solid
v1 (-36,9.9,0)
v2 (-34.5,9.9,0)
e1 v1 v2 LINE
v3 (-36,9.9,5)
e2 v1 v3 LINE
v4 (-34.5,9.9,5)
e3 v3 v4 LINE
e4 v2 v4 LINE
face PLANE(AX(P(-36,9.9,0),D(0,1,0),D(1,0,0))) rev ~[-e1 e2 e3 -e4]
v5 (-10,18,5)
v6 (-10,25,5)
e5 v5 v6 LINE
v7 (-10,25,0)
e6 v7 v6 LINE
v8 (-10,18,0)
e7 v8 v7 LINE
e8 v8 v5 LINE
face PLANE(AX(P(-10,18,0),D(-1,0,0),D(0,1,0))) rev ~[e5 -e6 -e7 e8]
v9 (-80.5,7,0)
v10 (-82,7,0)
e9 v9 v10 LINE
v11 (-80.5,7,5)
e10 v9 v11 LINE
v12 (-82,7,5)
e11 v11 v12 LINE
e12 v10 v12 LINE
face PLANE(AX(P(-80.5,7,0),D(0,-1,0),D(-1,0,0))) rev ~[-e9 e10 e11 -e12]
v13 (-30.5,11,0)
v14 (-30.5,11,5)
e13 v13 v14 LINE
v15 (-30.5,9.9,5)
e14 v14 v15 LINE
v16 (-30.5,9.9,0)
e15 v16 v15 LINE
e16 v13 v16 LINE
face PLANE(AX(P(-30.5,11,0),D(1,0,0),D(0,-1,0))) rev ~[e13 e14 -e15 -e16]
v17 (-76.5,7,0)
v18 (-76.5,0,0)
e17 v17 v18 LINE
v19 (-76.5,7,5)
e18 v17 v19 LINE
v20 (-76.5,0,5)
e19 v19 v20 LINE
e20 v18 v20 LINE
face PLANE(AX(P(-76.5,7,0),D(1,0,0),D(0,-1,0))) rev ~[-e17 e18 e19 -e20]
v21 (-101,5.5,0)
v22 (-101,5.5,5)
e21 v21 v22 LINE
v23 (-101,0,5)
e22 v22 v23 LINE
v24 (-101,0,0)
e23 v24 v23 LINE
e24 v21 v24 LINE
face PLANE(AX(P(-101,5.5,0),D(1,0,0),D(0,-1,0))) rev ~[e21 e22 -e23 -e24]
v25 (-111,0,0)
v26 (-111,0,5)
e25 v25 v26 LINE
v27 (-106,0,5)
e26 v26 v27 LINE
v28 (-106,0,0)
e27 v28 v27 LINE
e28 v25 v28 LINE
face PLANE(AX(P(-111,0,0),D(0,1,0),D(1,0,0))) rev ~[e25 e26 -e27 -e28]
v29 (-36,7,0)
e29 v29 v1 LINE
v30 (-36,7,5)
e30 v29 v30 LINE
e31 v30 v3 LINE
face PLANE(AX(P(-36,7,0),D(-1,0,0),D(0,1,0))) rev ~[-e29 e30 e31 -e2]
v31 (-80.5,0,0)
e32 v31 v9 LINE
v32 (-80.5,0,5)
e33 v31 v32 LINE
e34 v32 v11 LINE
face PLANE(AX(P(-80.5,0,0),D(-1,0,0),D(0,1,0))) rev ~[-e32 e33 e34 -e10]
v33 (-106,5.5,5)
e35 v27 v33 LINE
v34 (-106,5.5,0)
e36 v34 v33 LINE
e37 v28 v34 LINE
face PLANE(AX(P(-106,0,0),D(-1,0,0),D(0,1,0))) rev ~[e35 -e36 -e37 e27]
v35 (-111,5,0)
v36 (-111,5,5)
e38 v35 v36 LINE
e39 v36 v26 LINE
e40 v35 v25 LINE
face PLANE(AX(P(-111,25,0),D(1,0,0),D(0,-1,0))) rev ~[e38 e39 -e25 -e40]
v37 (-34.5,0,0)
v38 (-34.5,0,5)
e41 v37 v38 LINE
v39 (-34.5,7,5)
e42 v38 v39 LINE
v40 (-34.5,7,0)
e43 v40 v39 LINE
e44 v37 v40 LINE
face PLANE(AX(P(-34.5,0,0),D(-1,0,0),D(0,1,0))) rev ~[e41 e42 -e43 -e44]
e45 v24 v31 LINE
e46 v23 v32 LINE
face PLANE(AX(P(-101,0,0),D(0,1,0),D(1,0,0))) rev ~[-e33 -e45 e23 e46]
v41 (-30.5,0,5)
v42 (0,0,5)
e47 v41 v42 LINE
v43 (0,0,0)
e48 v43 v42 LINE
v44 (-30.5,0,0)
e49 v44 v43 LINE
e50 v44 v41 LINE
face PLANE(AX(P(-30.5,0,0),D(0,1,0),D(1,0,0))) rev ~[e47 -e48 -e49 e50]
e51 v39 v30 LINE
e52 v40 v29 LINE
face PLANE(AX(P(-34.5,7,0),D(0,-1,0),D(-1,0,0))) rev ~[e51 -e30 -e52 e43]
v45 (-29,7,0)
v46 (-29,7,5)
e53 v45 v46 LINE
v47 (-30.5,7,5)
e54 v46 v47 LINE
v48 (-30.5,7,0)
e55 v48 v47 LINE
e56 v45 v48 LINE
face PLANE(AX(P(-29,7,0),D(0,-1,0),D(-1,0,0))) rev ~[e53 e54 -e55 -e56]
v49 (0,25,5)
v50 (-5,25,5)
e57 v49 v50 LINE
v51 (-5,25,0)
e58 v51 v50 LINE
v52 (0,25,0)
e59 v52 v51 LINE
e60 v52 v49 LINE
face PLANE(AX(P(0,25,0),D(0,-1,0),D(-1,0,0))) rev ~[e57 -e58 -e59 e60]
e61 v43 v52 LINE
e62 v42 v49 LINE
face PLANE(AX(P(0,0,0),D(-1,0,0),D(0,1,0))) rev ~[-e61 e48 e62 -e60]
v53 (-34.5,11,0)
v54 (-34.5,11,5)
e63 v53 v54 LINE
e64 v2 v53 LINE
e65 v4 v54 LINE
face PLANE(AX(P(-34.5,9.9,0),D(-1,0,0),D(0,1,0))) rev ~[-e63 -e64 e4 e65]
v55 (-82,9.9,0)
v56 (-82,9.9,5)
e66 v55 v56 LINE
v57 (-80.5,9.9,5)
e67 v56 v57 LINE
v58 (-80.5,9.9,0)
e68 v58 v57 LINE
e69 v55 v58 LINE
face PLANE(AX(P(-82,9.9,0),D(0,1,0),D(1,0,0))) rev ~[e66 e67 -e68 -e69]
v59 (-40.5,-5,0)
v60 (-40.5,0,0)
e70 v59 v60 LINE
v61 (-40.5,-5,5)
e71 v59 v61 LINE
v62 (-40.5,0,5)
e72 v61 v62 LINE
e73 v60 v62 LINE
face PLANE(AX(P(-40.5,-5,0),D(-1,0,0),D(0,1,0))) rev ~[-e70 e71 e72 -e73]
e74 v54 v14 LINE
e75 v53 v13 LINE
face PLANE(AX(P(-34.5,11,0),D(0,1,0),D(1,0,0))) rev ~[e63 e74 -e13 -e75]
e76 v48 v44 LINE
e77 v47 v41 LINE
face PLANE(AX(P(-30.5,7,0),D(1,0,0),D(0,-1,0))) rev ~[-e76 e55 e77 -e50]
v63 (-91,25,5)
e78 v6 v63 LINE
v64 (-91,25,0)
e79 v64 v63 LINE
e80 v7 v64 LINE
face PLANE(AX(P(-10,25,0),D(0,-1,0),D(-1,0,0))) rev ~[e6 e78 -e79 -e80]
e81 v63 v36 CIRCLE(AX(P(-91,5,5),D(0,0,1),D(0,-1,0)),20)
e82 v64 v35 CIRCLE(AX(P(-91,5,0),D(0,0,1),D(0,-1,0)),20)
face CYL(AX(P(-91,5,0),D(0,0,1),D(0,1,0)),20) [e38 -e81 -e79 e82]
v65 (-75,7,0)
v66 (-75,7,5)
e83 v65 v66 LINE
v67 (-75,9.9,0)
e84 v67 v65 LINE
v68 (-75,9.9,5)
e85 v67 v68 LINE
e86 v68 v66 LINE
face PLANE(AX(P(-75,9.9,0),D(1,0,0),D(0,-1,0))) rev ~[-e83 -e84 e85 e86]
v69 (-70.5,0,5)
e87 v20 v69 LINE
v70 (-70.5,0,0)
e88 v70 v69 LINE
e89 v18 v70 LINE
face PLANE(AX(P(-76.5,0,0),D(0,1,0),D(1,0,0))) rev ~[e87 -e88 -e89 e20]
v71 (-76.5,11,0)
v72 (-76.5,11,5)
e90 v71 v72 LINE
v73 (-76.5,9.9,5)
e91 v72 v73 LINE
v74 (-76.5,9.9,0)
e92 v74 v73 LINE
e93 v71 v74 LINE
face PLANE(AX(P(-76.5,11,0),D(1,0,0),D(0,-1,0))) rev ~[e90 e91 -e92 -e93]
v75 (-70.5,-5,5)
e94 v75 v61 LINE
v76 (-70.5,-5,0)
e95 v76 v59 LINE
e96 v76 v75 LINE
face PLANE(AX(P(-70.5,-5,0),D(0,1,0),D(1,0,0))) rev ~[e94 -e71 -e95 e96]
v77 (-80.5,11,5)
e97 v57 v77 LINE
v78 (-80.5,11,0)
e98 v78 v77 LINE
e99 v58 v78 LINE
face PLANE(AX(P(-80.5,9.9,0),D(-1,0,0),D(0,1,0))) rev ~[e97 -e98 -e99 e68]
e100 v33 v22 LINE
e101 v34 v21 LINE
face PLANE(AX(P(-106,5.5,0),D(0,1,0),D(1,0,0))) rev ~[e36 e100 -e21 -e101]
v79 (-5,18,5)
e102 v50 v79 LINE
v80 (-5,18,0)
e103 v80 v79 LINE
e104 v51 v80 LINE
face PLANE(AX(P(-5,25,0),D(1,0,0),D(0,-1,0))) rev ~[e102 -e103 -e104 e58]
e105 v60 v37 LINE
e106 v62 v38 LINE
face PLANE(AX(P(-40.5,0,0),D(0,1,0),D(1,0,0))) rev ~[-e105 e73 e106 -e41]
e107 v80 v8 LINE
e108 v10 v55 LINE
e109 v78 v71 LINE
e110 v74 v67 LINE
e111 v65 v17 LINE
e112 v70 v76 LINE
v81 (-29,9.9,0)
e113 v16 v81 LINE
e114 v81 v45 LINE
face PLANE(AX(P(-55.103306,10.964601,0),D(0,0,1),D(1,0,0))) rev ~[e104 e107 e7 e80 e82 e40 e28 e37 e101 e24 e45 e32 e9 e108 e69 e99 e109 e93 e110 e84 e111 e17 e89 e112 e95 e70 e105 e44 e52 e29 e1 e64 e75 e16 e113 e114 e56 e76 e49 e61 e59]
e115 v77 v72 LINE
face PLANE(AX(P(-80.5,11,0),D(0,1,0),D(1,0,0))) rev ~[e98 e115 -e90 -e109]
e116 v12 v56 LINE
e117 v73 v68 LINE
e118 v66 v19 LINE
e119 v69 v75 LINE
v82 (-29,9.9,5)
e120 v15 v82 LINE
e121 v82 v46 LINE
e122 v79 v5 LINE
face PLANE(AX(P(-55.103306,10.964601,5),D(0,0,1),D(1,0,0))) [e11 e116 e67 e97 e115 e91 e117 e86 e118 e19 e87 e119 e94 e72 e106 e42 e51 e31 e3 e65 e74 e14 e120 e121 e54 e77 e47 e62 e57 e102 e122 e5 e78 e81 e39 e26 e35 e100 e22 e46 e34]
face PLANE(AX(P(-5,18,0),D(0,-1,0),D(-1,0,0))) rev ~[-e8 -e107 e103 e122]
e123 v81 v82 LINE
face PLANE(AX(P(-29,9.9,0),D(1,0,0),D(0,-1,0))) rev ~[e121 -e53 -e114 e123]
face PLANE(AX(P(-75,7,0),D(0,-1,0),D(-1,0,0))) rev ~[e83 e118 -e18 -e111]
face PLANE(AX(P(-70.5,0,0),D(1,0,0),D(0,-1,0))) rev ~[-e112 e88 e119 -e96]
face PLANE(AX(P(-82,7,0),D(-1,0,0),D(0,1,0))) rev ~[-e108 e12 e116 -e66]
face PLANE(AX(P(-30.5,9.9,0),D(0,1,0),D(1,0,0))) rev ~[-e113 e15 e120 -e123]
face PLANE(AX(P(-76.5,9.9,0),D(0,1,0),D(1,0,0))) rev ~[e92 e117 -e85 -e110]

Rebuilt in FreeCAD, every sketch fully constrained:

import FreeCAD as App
import Part
import Sketcher

V = App.Vector
Q = App.Units.Quantity


def edges_at(feature, points):
    """Names of the edges that pass closest to the given points."""
    edges = feature.Shape.Edges
    near = lambda p: min(range(len(edges)), key=lambda i: edges[i].distToShape(Part.Vertex(*p))[0])
    return sorted({f"Edge{near(p) + 1}" for p in points})

doc = App.newDocument("Part")
body = doc.addObject("PartDesign::Body", "Body")

# Sketch on XY plane
sketch1 = body.newObject("Sketcher::SketchObject", "Sketch")
sketch1.AttachmentSupport = (doc.getObject("XY_Plane"), [""])
sketch1.MapMode = "FlatFace"
sketch1.addGeometry([
    Part.LineSegment(V(-101, 0, 0), V(-80.5, 0, 0)),  # 0
    Part.LineSegment(V(-80.5, 0, 0), V(-80.5, 7, 0)),  # 1
    Part.LineSegment(V(-80.5, 7, 0), V(-82, 7, 0)),  # 2
    Part.LineSegment(V(-82, 7, 0), V(-82, 9.9, 0)),  # 3
    Part.LineSegment(V(-82, 9.9, 0), V(-80.5, 9.9, 0)),  # 4
    Part.LineSegment(V(-80.5, 9.9, 0), V(-80.5, 11, 0)),  # 5
    Part.LineSegment(V(-80.5, 11, 0), V(-76.5, 11, 0)),  # 6
    Part.LineSegment(V(-76.5, 11, 0), V(-76.5, 9.9, 0)),  # 7
    Part.LineSegment(V(-76.5, 9.9, 0), V(-75, 9.9, 0)),  # 8
    Part.LineSegment(V(-75, 9.9, 0), V(-75, 7, 0)),  # 9
    Part.LineSegment(V(-75, 7, 0), V(-76.5, 7, 0)),  # 10
    Part.LineSegment(V(-76.5, 7, 0), V(-76.5, 0, 0)),  # 11
    Part.LineSegment(V(-76.5, 0, 0), V(-70.5, 0, 0)),  # 12
    Part.LineSegment(V(-70.5, 0, 0), V(-70.5, -5, 0)),  # 13
    Part.LineSegment(V(-70.5, -5, 0), V(-40.5, -5, 0)),  # 14
    Part.LineSegment(V(-40.5, -5, 0), V(-40.5, 0, 0)),  # 15
    Part.LineSegment(V(-40.5, 0, 0), V(-34.5, 0, 0)),  # 16
    Part.LineSegment(V(-34.5, 0, 0), V(-34.5, 7, 0)),  # 17
    Part.LineSegment(V(-34.5, 7, 0), V(-36, 7, 0)),  # 18
    Part.LineSegment(V(-36, 7, 0), V(-36, 9.9, 0)),  # 19
    Part.LineSegment(V(-36, 9.9, 0), V(-34.5, 9.9, 0)),  # 20
    Part.LineSegment(V(-34.5, 9.9, 0), V(-34.5, 11, 0)),  # 21
    Part.LineSegment(V(-34.5, 11, 0), V(-30.5, 11, 0)),  # 22
    Part.LineSegment(V(-30.5, 11, 0), V(-30.5, 9.9, 0)),  # 23
    Part.LineSegment(V(-30.5, 9.9, 0), V(-29, 9.9, 0)),  # 24
    Part.LineSegment(V(-29, 9.9, 0), V(-29, 7, 0)),  # 25
    Part.LineSegment(V(-29, 7, 0), V(-30.5, 7, 0)),  # 26
    Part.LineSegment(V(-30.5, 7, 0), V(-30.5, 0, 0)),  # 27
    Part.LineSegment(V(-30.5, 0, 0), V(0, 0, 0)),  # 28
    Part.LineSegment(V(0, 0, 0), V(0, 25, 0)),  # 29
    Part.LineSegment(V(0, 25, 0), V(-5, 25, 0)),  # 30
    Part.LineSegment(V(-5, 25, 0), V(-5, 18, 0)),  # 31
    Part.LineSegment(V(-5, 18, 0), V(-10, 18, 0)),  # 32
    Part.LineSegment(V(-10, 18, 0), V(-10, 25, 0)),  # 33
    Part.LineSegment(V(-10, 25, 0), V(-111, 25, 0)),  # 34
    Part.LineSegment(V(-111, 25, 0), V(-111, 0, 0)),  # 35
    Part.LineSegment(V(-111, 0, 0), V(-106, 0, 0)),  # 36
    Part.LineSegment(V(-106, 0, 0), V(-106, 5.5, 0)),  # 37
    Part.LineSegment(V(-106, 5.5, 0), V(-101, 5.5, 0)),  # 38
    Part.LineSegment(V(-101, 5.5, 0), V(-101, 0, 0)),  # 39
], False)
sketch1.addConstraint([
    Sketcher.Constraint("Coincident", 0, 2, 1, 1),
    Sketcher.Constraint("Coincident", 1, 2, 2, 1),
    Sketcher.Constraint("Coincident", 2, 2, 3, 1),
    Sketcher.Constraint("Coincident", 3, 2, 4, 1),
    Sketcher.Constraint("Coincident", 4, 2, 5, 1),
    Sketcher.Constraint("Coincident", 5, 2, 6, 1),
    Sketcher.Constraint("Coincident", 6, 2, 7, 1),
    Sketcher.Constraint("Coincident", 7, 2, 8, 1),
    Sketcher.Constraint("Coincident", 8, 2, 9, 1),
    Sketcher.Constraint("Coincident", 9, 2, 10, 1),
    Sketcher.Constraint("Coincident", 10, 2, 11, 1),
    Sketcher.Constraint("Coincident", 11, 2, 12, 1),
    Sketcher.Constraint("Coincident", 12, 2, 13, 1),
    Sketcher.Constraint("Coincident", 13, 2, 14, 1),
    Sketcher.Constraint("Coincident", 14, 2, 15, 1),
    Sketcher.Constraint("Coincident", 15, 2, 16, 1),
    Sketcher.Constraint("Coincident", 16, 2, 17, 1),
    Sketcher.Constraint("Coincident", 17, 2, 18, 1),
    Sketcher.Constraint("Coincident", 18, 2, 19, 1),
    Sketcher.Constraint("Coincident", 19, 2, 20, 1),
    Sketcher.Constraint("Coincident", 20, 2, 21, 1),
    Sketcher.Constraint("Coincident", 21, 2, 22, 1),
    Sketcher.Constraint("Coincident", 22, 2, 23, 1),
    Sketcher.Constraint("Coincident", 23, 2, 24, 1),
    Sketcher.Constraint("Coincident", 24, 2, 25, 1),
    Sketcher.Constraint("Coincident", 25, 2, 26, 1),
    Sketcher.Constraint("Coincident", 26, 2, 27, 1),
    Sketcher.Constraint("Coincident", 27, 2, 28, 1),
    Sketcher.Constraint("Coincident", 28, 2, 29, 1),
    Sketcher.Constraint("Coincident", 29, 2, 30, 1),
    Sketcher.Constraint("Coincident", 30, 2, 31, 1),
    Sketcher.Constraint("Coincident", 31, 2, 32, 1),
    Sketcher.Constraint("Coincident", 32, 2, 33, 1),
    Sketcher.Constraint("Coincident", 33, 2, 34, 1),
    Sketcher.Constraint("Coincident", 34, 2, 35, 1),
    Sketcher.Constraint("Coincident", 35, 2, 36, 1),
    Sketcher.Constraint("Coincident", 36, 2, 37, 1),
    Sketcher.Constraint("Coincident", 37, 2, 38, 1),
    Sketcher.Constraint("Coincident", 38, 2, 39, 1),
    Sketcher.Constraint("Coincident", 39, 2, 0, 1),
    Sketcher.Constraint("Horizontal", 0),
    Sketcher.Constraint("Vertical", 1),
    Sketcher.Constraint("Horizontal", 2),
    Sketcher.Constraint("Vertical", 3),
    Sketcher.Constraint("Horizontal", 4),
    Sketcher.Constraint("Vertical", 5),
    Sketcher.Constraint("Horizontal", 6),
    Sketcher.Constraint("Vertical", 7),
    Sketcher.Constraint("Horizontal", 8),
    Sketcher.Constraint("Vertical", 9),
    Sketcher.Constraint("Horizontal", 10),
    Sketcher.Constraint("Vertical", 11),
    Sketcher.Constraint("Horizontal", 12),
    Sketcher.Constraint("Vertical", 13),
    Sketcher.Constraint("Horizontal", 14),
    Sketcher.Constraint("Vertical", 15),
    Sketcher.Constraint("Horizontal", 16),
    Sketcher.Constraint("Vertical", 17),
    Sketcher.Constraint("Horizontal", 18),
    Sketcher.Constraint("Vertical", 19),
    Sketcher.Constraint("Horizontal", 20),
    Sketcher.Constraint("Vertical", 21),
    Sketcher.Constraint("Horizontal", 22),
    Sketcher.Constraint("Vertical", 23),
    Sketcher.Constraint("Horizontal", 24),
    Sketcher.Constraint("Vertical", 25),
    Sketcher.Constraint("Horizontal", 26),
    Sketcher.Constraint("Vertical", 27),
    Sketcher.Constraint("Horizontal", 28),
    Sketcher.Constraint("Vertical", 29),
    Sketcher.Constraint("Horizontal", 30),
    Sketcher.Constraint("Vertical", 31),
    Sketcher.Constraint("Horizontal", 32),
    Sketcher.Constraint("Vertical", 33),
    Sketcher.Constraint("Horizontal", 34),
    Sketcher.Constraint("Vertical", 35),
    Sketcher.Constraint("Horizontal", 36),
    Sketcher.Constraint("Vertical", 37),
    Sketcher.Constraint("Horizontal", 38),
    Sketcher.Constraint("Vertical", 39),
    Sketcher.Constraint("Coincident", 28, 2, -1, 1),
    Sketcher.Constraint("PointOnObject", 0, 2, -1),
    Sketcher.Constraint("PointOnObject", 11, 2, -1),
    Sketcher.Constraint("PointOnObject", 15, 2, -1),
    Sketcher.Constraint("PointOnObject", 35, 2, -1),
    Sketcher.Constraint("Horizontal", 4, 2, 7, 2),
    Sketcher.Constraint("Horizontal", 2, 2, 9, 2),
    Sketcher.Constraint("Horizontal", 10, 2, 17, 2),
    Sketcher.Constraint("Horizontal", 8, 2, 19, 2),
    Sketcher.Constraint("Horizontal", 6, 2, 21, 2),
    Sketcher.Constraint("Horizontal", 20, 2, 23, 2),
    Sketcher.Constraint("Horizontal", 18, 2, 25, 2),
    Sketcher.Constraint("Horizontal", 30, 2, 33, 2),
    Sketcher.Constraint("Vertical", 1, 2, 4, 2),
    Sketcher.Constraint("Vertical", 7, 2, 10, 2),
    Sketcher.Constraint("Vertical", 17, 2, 20, 2),
    Sketcher.Constraint("Vertical", 23, 2, 26, 2),
    Sketcher.Constraint("Equal", 4, 8),
    Sketcher.Constraint("Equal", 12, 16),
    Sketcher.Constraint("Equal", 10, 18),
    Sketcher.Constraint("Equal", 6, 22),
    Sketcher.Constraint("Equal", 20, 24),
    Sketcher.Constraint("Equal", 30, 32),
    Sketcher.Constraint("Equal", 32, 36),
    Sketcher.Constraint("Equal", 36, 38),
    Sketcher.Constraint("Equal", 38, 13),
    Sketcher.Constraint("Equal", 27, 31),
    Sketcher.Constraint("DistanceX", 6, 1, 6, 2, Q("4 mm")),
    Sketcher.Constraint("DistanceX", 12, 1, 12, 2, Q("6 mm")),
    Sketcher.Constraint("DistanceX", 14, 1, 14, 2, Q("30 mm")),
    Sketcher.Constraint("DistanceX", 30, 2, 30, 1, Q("5 mm")),
    Sketcher.Constraint("DistanceX", 34, 2, 34, 1, Q("101 mm")),
    Sketcher.Constraint("DistanceY", 1, 1, 1, 2, Q("7 mm")),
    Sketcher.Constraint("DistanceY", 29, 1, 29, 2, Q("25 mm")),
    Sketcher.Constraint("DistanceX", 0, 1, 0, 2, Q("20.5 mm")),
    Sketcher.Constraint("DistanceX", 2, 2, 2, 1, Q("1.5 mm")),
    Sketcher.Constraint("DistanceY", 3, 1, 3, 2, Q("2.9 mm")),
    Sketcher.Constraint("DistanceY", 5, 1, 5, 2, Q("1.1 mm")),
    Sketcher.Constraint("DistanceY", 37, 1, 37, 2, Q("5.5 mm")),
])
pad1 = body.newObject("PartDesign::Pad", "Pad")
pad1.Profile = sketch1
pad1.Length = 5
doc.recompute()

fillet = body.newObject("PartDesign::Fillet", "Fillet")
fillet.Base = (pad1, edges_at(pad1, [(-111, 25, 2.5)]))
fillet.Radius = 20

doc.recompute()
